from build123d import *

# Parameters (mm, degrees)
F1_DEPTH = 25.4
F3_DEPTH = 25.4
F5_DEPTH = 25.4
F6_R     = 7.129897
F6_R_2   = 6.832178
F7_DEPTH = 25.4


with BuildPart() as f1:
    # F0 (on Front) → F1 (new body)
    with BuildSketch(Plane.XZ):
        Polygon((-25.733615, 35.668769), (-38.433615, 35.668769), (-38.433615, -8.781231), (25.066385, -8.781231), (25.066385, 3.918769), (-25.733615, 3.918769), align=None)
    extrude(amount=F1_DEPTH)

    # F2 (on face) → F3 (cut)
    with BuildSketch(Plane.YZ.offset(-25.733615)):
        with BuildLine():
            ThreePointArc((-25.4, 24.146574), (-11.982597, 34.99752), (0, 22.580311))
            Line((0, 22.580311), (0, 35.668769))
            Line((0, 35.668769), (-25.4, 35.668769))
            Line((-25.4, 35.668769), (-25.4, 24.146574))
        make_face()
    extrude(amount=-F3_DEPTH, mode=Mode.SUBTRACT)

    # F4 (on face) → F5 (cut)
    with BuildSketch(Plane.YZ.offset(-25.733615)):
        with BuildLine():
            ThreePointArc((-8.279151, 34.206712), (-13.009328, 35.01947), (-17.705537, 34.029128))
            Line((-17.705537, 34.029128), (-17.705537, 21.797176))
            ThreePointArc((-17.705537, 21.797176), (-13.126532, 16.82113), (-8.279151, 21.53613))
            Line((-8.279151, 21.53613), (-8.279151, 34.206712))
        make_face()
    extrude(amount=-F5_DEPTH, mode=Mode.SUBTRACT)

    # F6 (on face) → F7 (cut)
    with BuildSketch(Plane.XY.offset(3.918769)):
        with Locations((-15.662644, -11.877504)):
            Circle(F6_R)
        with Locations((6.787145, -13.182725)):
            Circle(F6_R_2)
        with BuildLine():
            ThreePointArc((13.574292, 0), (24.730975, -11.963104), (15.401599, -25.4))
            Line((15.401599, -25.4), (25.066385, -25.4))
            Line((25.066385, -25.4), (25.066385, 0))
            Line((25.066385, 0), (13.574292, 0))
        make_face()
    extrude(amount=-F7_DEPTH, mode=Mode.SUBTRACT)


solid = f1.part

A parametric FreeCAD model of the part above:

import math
import FreeCAD as App
import Part
import Sketcher

V = App.Vector
Q = App.Units.Quantity

doc = App.newDocument("Part")
body = doc.addObject("PartDesign::Body", "Body")

sketch1 = doc.addObject("Sketcher::SketchObject", "Sketch")
body.addObject(sketch1)
sketch1.AttachmentSupport = (doc.XZ_Plane, [""])
sketch1.MapMode = "FlatFace"
sketch1.addGeometry(Part.LineSegment(V(-26, 36, 0), V(-38, 36, 0)), False)
sketch1.addGeometry(Part.LineSegment(V(-38, 36, 0), V(-38, -9, 0)), False)
sketch1.addGeometry(Part.LineSegment(V(-38, -9, 0), V(25, -9, 0)), False)
sketch1.addGeometry(Part.LineSegment(V(25, -9, 0), V(25, 4, 0)), False)
sketch1.addGeometry(Part.LineSegment(V(25, 4, 0), V(-26, 4, 0)), False)
sketch1.addGeometry(Part.LineSegment(V(-26, 4, 0), V(-26, 36, 0)), False)
sketch1.addConstraint(Sketcher.Constraint("Coincident", 0, 2, 1, 1))
sketch1.addConstraint(Sketcher.Constraint("Coincident", 1, 2, 2, 1))
sketch1.addConstraint(Sketcher.Constraint("Coincident", 2, 2, 3, 1))
sketch1.addConstraint(Sketcher.Constraint("Coincident", 3, 2, 4, 1))
sketch1.addConstraint(Sketcher.Constraint("Coincident", 4, 2, 5, 1))
sketch1.addConstraint(Sketcher.Constraint("Coincident", 5, 2, 0, 1))
sketch1.addConstraint(Sketcher.Constraint("Horizontal", 0))
sketch1.addConstraint(Sketcher.Constraint("Vertical", 1))
sketch1.addConstraint(Sketcher.Constraint("Horizontal", 2))
sketch1.addConstraint(Sketcher.Constraint("Vertical", 3))
sketch1.addConstraint(Sketcher.Constraint("Horizontal", 4))
sketch1.addConstraint(Sketcher.Constraint("Vertical", 5))
sketch1.addConstraint(Sketcher.Constraint("Equal", 0, 3))
sketch1.addConstraint(Sketcher.Constraint("DistanceX", 4, 2, 4, 1, Q("2 in")))
sketch1.addConstraint(Sketcher.Constraint("DistanceX", 0, 2, 0, 1, Q("0.5 in")))
sketch1.addConstraint(Sketcher.Constraint("DistanceY", 1, 2, 1, 1, Q("1.75 in")))
sketch1.addConstraint(Sketcher.Constraint("DistanceY", -1, 1, 0, 2, Q("35.668769 mm")))
sketch1.addConstraint(Sketcher.Constraint("DistanceX", 0, 2, -1, 1, Q("38.433615 mm")))
pad1 = doc.addObject("PartDesign::Pad", "Pad")
body.addObject(pad1)
pad1.Profile = sketch1
pad1.Length = Q("1 in")

sketch2 = doc.addObject("Sketcher::SketchObject", "Sketch001")
body.addObject(sketch2)
sketch2.AttachmentSupport = (doc.YZ_Plane, [""])
sketch2.MapMode = "FlatFace"
sketch2.AttachmentOffset = App.Placement(V(0, 0, -25.733615), App.Rotation())
sketch2.addGeometry(Part.ArcOfCircle(Part.Circle(V(-13, 22, 0), V(0, 0, 1), 13), math.radians(1), math.radians(171)), False)
sketch2.addGeometry(Part.LineSegment(V(0, 23, 0), V(0, 36, 0)), False)
sketch2.addGeometry(Part.LineSegment(V(0, 36, 0), V(-25, 36, 0)), False)
sketch2.addGeometry(Part.LineSegment(V(-25, 36, 0), V(-25, 24, 0)), False)
sketch2.addConstraint(Sketcher.Constraint("Coincident", 0, 1, 1, 1))
sketch2.addConstraint(Sketcher.Constraint("Coincident", 1, 2, 2, 1))
sketch2.addConstraint(Sketcher.Constraint("Coincident", 2, 2, 3, 1))
sketch2.addConstraint(Sketcher.Constraint("Coincident", 3, 2, 0, 2))
sketch2.addConstraint(Sketcher.Constraint("Vertical", 1))
sketch2.addConstraint(Sketcher.Constraint("Horizontal", 2))
sketch2.addConstraint(Sketcher.Constraint("Vertical", 3))
sketch2.addConstraint(Sketcher.Constraint("PointOnObject", 0, 1, -2))
sketch2.addConstraint(Sketcher.Constraint("DistanceX", 2, 2, 2, 1, Q("1 in")))
sketch2.addConstraint(Sketcher.Constraint("Radius", 0, Q("12.773046 mm")))
sketch2.addConstraint(Sketcher.Constraint("DistanceY", 1, 1, 1, 2, Q("13.088458 mm")))
sketch2.addConstraint(Sketcher.Constraint("DistanceY", 3, 2, 3, 1, Q("11.522195 mm")))
sketch2.addConstraint(Sketcher.Constraint("DistanceY", -1, 1, 0, 3, Q("22.24869 mm")))
pocket1 = doc.addObject("PartDesign::Pocket", "Pocket")
body.addObject(pocket1)
pocket1.Profile = sketch2
pocket1.Length = Q("1 in")

sketch3 = doc.addObject("Sketcher::SketchObject", "Sketch002")
body.addObject(sketch3)
sketch3.AttachmentSupport = (doc.YZ_Plane, [""])
sketch3.MapMode = "FlatFace"
sketch3.AttachmentOffset = App.Placement(V(0, 0, -25.733615), App.Rotation())
sketch3.addGeometry(Part.ArcOfCircle(Part.Circle(V(-12.8, 22.2, 0), V(0, 0, 1), 12.8), math.radians(69), math.radians(113)), False)
sketch3.addGeometry(Part.LineSegment(V(-17.7, 34, 0), V(-17.7, 21.8, 0)), False)
sketch3.addGeometry(Part.ArcOfCircle(Part.Circle(V(-13, 21.5, 0), V(0, 0, 1), 4.7), math.radians(177), math.radians(360)), False)
sketch3.addGeometry(Part.LineSegment(V(-8.3, 21.5, 0), V(-8.3, 34.2, 0)), False)
sketch3.addConstraint(Sketcher.Constraint("Coincident", 0, 2, 1, 1))
sketch3.addConstraint(Sketcher.Constraint("Coincident", 1, 2, 2, 1))
sketch3.addConstraint(Sketcher.Constraint("Tangent", 2, 2, 3, 1))
sketch3.addConstraint(Sketcher.Constraint("Coincident", 3, 2, 0, 1))
sketch3.addConstraint(Sketcher.Constraint("Vertical", 1))
sketch3.addConstraint(Sketcher.Constraint("Vertical", 3))
sketch3.addConstraint(Sketcher.Constraint("Radius", 0, Q("12.773039 mm")))
sketch3.addConstraint(Sketcher.Constraint("Radius", 2, Q("4.716808 mm")))
sketch3.addConstraint(Sketcher.Constraint("DistanceY", 2, 3, 0, 2, Q("12.492998 mm")))
sketch3.addConstraint(Sketcher.Constraint("DistanceY", 1, 2, 1, 1, Q("12.231952 mm")))
sketch3.addConstraint(Sketcher.Constraint("DistanceY", 3, 1, 3, 2, Q("12.670582 mm")))
sketch3.addConstraint(Sketcher.Constraint("DistanceX", 0, 3, -1, 1, Q("12.768739 mm")))
sketch3.addConstraint(Sketcher.Constraint("DistanceY", -1, 1, 2, 3, Q("21.53613 mm")))
pocket2 = doc.addObject("PartDesign::Pocket", "Pocket001")
body.addObject(pocket2)
pocket2.Profile = sketch3
pocket2.Length = Q("1 in")

sketch4 = doc.addObject("Sketcher::SketchObject", "Sketch003")
body.addObject(sketch4)
sketch4.AttachmentSupport = (doc.XY_Plane, [""])
sketch4.MapMode = "FlatFace"
sketch4.AttachmentOffset = App.Placement(V(0, 0, 3.918769), App.Rotation())
sketch4.addGeometry(Part.Circle(V(-16, -12, 0), V(0, 0, 1), 7), False)
sketch4.addGeometry(Part.Circle(V(7, -13, 0), V(0, 0, 1), 7), False)
sketch4.addGeometry(Part.ArcOfCircle(Part.Circle(V(12, -13, 0), V(0, 0, 1), 13), math.radians(-74), math.radians(82)), False)
sketch4.addGeometry(Part.LineSegment(V(15, -25, 0), V(25, -25, 0)), False)
sketch4.addGeometry(Part.LineSegment(V(25, -25, 0), V(25, 0, 0)), False)
sketch4.addGeometry(Part.LineSegment(V(25, 0, 0), V(14, 0, 0)), False)
sketch4.addConstraint(Sketcher.Constraint("Coincident", 2, 1, 3, 1))
sketch4.addConstraint(Sketcher.Constraint("Coincident", 3, 2, 4, 1))
sketch4.addConstraint(Sketcher.Constraint("Coincident", 4, 2, 5, 1))
sketch4.addConstraint(Sketcher.Constraint("Coincident", 5, 2, 2, 2))
sketch4.addConstraint(Sketcher.Constraint("Horizontal", 3))
sketch4.addConstraint(Sketcher.Constraint("Vertical", 4))
sketch4.addConstraint(Sketcher.Constraint("Horizontal", 5))
sketch4.addConstraint(Sketcher.Constraint("PointOnObject", 4, 2, -1))
sketch4.addConstraint(Sketcher.Constraint("DistanceY", 4, 1, 4, 2, Q("1 in")))
sketch4.addConstraint(Sketcher.Constraint("Diameter", 0, Q("14.259794 mm")))
sketch4.addConstraint(Sketcher.Constraint("Diameter", 1, Q("13.664356 mm")))
sketch4.addConstraint(Sketcher.Constraint("Radius", 2, Q("13.028258 mm")))
sketch4.addConstraint(Sketcher.Constraint("DistanceX", -1, 1, 2, 3, Q("11.736301 mm")))
sketch4.addConstraint(Sketcher.Constraint("DistanceX", -1, 1, 2, 1, Q("15.401599 mm")))
sketch4.addConstraint(Sketcher.Constraint("DistanceX", 3, 1, 3, 2, Q("9.664786 mm")))
sketch4.addConstraint(Sketcher.Constraint("DistanceX", 0, 3, 1, 3, Q("22.449789 mm")))
sketch4.addConstraint(Sketcher.Constraint("DistanceY", 1, 3, 0, 3, Q("1.305221 mm")))
sketch4.addConstraint(Sketcher.Constraint("DistanceY", 1, 3, 2, 3, Q("0.284768 mm")))
sketch4.addConstraint(Sketcher.Constraint("DistanceX", 1, 3, 3, 2, Q("18.27924 mm")))
pocket3 = doc.addObject("PartDesign::Pocket", "Pocket002")
body.addObject(pocket3)
pocket3.Profile = sketch4
pocket3.Length = Q("1 in")

doc.recompute()
